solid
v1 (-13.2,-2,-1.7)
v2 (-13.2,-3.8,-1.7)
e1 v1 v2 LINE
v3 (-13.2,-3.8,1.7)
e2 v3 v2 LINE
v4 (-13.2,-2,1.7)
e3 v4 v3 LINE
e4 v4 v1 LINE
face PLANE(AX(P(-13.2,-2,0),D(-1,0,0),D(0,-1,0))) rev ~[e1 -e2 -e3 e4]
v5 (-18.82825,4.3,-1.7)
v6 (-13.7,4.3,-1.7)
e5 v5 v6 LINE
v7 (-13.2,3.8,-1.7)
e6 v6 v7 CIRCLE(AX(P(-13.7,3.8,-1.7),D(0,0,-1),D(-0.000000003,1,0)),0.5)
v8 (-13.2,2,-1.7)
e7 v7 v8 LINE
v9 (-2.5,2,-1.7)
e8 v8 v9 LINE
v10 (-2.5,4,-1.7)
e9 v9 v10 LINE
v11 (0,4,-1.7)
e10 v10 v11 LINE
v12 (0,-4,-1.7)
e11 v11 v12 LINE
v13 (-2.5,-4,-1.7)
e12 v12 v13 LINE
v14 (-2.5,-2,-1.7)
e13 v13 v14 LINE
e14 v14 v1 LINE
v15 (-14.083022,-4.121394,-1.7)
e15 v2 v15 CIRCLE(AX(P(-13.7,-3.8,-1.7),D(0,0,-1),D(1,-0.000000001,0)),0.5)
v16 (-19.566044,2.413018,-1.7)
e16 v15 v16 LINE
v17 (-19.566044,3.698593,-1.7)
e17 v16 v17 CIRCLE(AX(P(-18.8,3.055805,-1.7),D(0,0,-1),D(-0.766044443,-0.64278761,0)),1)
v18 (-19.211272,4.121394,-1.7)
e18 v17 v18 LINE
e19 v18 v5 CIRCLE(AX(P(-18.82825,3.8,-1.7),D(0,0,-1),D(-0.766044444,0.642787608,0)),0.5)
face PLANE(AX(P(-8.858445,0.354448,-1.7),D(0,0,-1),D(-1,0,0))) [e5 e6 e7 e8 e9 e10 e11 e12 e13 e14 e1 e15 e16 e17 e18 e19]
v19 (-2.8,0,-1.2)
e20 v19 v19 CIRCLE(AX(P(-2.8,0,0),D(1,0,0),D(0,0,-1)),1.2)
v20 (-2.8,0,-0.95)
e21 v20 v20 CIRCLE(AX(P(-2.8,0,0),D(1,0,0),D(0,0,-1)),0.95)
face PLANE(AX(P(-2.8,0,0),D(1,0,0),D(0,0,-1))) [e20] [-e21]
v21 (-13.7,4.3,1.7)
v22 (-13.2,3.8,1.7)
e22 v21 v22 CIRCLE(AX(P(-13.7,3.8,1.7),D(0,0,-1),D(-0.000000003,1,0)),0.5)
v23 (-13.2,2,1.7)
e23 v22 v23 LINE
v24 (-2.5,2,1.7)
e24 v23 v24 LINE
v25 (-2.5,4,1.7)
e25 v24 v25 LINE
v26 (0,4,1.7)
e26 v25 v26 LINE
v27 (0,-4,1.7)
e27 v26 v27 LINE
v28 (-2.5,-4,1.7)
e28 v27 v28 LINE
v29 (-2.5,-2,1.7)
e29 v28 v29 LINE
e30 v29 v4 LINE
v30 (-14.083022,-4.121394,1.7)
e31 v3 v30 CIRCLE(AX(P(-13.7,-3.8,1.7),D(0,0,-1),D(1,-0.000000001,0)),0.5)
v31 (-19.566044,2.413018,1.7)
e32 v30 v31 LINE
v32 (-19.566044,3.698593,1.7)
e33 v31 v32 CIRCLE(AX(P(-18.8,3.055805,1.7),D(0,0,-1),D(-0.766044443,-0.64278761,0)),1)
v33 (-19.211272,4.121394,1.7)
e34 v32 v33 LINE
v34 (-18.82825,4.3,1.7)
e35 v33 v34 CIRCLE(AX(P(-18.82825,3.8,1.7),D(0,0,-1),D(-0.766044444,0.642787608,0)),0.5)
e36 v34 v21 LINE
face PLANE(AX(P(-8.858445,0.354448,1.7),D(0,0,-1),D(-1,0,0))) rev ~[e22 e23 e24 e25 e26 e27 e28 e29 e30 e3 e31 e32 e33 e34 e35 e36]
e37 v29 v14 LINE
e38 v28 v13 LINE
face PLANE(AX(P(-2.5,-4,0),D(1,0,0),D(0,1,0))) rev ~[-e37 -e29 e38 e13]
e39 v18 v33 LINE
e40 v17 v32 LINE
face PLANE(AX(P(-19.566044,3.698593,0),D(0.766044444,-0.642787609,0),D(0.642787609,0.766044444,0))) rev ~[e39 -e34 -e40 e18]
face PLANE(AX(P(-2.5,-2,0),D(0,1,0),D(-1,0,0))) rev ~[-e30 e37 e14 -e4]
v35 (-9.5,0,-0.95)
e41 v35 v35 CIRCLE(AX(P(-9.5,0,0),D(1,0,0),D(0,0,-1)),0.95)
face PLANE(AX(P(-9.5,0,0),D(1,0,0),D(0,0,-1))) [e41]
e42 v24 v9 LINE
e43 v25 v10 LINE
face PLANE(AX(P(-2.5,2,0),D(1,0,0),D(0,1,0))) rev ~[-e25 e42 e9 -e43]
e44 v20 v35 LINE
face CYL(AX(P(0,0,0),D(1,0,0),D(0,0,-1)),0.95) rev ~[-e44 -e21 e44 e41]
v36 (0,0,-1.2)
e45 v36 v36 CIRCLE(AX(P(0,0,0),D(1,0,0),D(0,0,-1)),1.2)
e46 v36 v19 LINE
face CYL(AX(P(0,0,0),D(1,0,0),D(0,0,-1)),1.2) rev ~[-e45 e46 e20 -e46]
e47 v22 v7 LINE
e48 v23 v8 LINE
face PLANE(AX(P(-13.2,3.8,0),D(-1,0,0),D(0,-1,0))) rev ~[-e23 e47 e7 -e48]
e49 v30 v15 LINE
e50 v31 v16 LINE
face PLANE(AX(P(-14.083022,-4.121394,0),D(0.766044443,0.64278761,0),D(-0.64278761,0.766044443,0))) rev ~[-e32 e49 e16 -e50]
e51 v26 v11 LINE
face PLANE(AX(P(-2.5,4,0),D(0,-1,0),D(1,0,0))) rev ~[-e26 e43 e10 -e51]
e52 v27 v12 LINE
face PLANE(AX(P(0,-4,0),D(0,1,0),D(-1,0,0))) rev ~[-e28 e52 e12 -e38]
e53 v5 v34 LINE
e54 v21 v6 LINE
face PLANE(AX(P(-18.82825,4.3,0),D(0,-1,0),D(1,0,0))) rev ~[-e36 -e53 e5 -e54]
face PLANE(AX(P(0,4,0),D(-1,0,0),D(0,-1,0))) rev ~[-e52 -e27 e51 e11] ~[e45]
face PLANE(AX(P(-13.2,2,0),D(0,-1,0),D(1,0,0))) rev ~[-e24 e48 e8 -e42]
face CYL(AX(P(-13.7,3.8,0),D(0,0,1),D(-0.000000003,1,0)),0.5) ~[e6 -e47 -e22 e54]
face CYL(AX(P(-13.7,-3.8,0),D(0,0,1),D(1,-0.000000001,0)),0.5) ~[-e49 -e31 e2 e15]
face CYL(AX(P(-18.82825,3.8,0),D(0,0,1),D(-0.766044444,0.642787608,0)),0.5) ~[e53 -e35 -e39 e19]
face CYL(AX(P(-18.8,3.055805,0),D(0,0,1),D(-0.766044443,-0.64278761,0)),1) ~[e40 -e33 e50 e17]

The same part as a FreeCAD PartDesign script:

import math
import FreeCAD as App
import Part
import Sketcher

V = App.Vector
Q = App.Units.Quantity

doc = App.newDocument("Part")
params = doc.addObject("Spreadsheet::Sheet", "Params")
for row, (alias, value) in enumerate([
    ("sketch1_radius", "1 mm"),
    ("sketch1_radius2", "0.5 mm"),
    ("sketch1_height", "2 mm"),
    ("sketch1_height2", "8 mm"),
    ("sketch1_width", "10.7 mm"),
    ("pad1_length", "3.4 mm"),
    ("sketch2_diameter", "1.9 mm"),
    ("pocket1_length", "9.5 mm"),
    ("sketch3_diameter", "2.4 mm"),
    ("pocket2_length", "2.8 mm"),
], start=1):
    params.set(f"A{row}", alias)
    params.set(f"B{row}", "=" + value)
    params.setAlias(f"B{row}", alias)

body = doc.addObject("PartDesign::Body", "Body")

sketch1 = doc.addObject("Sketcher::SketchObject", "Sketch")
body.addObject(sketch1)
sketch1.AttachmentSupport = (doc.XY_Plane, [""])
sketch1.MapMode = "FlatFace"
sketch1.addGeometry([
    Part.LineSegment(V(-13.7, 4.3, 0), V(-18.82825, 4.3, 0)),
    Part.ArcOfCircle(Part.Circle(V(-18.82825, 3.8, 0), V(0, 0, 1), 0.5), math.radians(90), math.radians(140)),
    Part.LineSegment(V(-19.211272, 4.121394, 0), V(-19.566044, 3.698593, 0)),
    Part.ArcOfCircle(Part.Circle(V(-18.8, 3.055805, 0), V(0, 0, 1), 1), math.radians(140), math.radians(220)),
    Part.LineSegment(V(-19.566044, 2.413018, 0), V(-14.083022, -4.121394, 0)),
    Part.ArcOfCircle(Part.Circle(V(-13.7, -3.8, 0), V(0, 0, 1), 0.5), math.radians(-140), math.radians(0)),
    Part.LineSegment(V(-13.2, -3.8, 0), V(-13.2, -2, 0)),
    Part.LineSegment(V(-13.2, -2, 0), V(-2.5, -2, 0)),
    Part.LineSegment(V(-2.5, -2, 0), V(-2.5, -4, 0)),
    Part.LineSegment(V(-2.5, -4, 0), V(0, -4, 0)),
    Part.LineSegment(V(0, -4, 0), V(0, 4, 0)),
    Part.LineSegment(V(0, 4, 0), V(-2.5, 4, 0)),
    Part.LineSegment(V(-2.5, 4, 0), V(-2.5, 2, 0)),
    Part.LineSegment(V(-2.5, 2, 0), V(-13.2, 2, 0)),
    Part.LineSegment(V(-13.2, 2, 0), V(-13.2, 3.8, 0)),
    Part.ArcOfCircle(Part.Circle(V(-13.7, 3.8, 0), V(0, 0, 1), 0.5), math.radians(0), math.radians(90)),
], False)
sketch1.addConstraint([
    Sketcher.Constraint("Tangent", 0, 2, 1, 1),
    Sketcher.Constraint("Tangent", 1, 2, 2, 1),
    Sketcher.Constraint("Tangent", 2, 2, 3, 1),
    Sketcher.Constraint("Tangent", 3, 2, 4, 1),
    Sketcher.Constraint("Tangent", 4, 2, 5, 1),
    Sketcher.Constraint("Tangent", 5, 2, 6, 1),
    Sketcher.Constraint("Coincident", 6, 2, 7, 1),
    Sketcher.Constraint("Coincident", 7, 2, 8, 1),
    Sketcher.Constraint("Coincident", 8, 2, 9, 1),
    Sketcher.Constraint("Coincident", 9, 2, 10, 1),
    Sketcher.Constraint("Coincident", 10, 2, 11, 1),
    Sketcher.Constraint("Coincident", 11, 2, 12, 1),
    Sketcher.Constraint("Coincident", 12, 2, 13, 1),
    Sketcher.Constraint("Coincident", 13, 2, 14, 1),
    Sketcher.Constraint("Tangent", 14, 2, 15, 1),
    Sketcher.Constraint("Tangent", 15, 2, 0, 1),
    Sketcher.Constraint("Horizontal", 0),
    Sketcher.Constraint("Vertical", 6),
    Sketcher.Constraint("Horizontal", 7),
    Sketcher.Constraint("Vertical", 8),
    Sketcher.Constraint("Horizontal", 9),
    Sketcher.Constraint("Vertical", 10),
    Sketcher.Constraint("Horizontal", 11),
    Sketcher.Constraint("Vertical", 12),
    Sketcher.Constraint("Horizontal", 13),
    Sketcher.Constraint("Vertical", 14),
    Sketcher.Constraint("Equal", 1, 5),
    Sketcher.Constraint("Equal", 5, 15),
    Sketcher.Constraint("Symmetric", 9, 2, 10, 2, -1, 1),
    Sketcher.Constraint("Symmetric", 5, 3, 15, 3, -1),
    Sketcher.Constraint("Symmetric", 7, 2, 12, 2, -1),
    Sketcher.Constraint("Vertical", 2, 2, 3, 2),
    Sketcher.Constraint("Radius", 3, Q("1 mm")),
    Sketcher.Constraint("Radius", 1, Q("0.5 mm")),
    Sketcher.Constraint("DistanceY", 8, 2, 8, 1, Q("2 mm")),
    Sketcher.Constraint("DistanceY", 10, 1, 10, 2, Q("8 mm")),
    Sketcher.Constraint("Angle", 2, Q("-130 deg")),
    Sketcher.Constraint("DistanceX", 7, 1, 7, 2, Q("10.7 mm")),
    Sketcher.Constraint("DistanceX", 9, 1, 9, 2, Q("2.5 mm")),
    Sketcher.Constraint("DistanceY", 6, 1, 6, 2, Q("1.8 mm")),
    Sketcher.Constraint("DistanceX", 3, 3, -1, 1, Q("18.8 mm")),
])
sketch1.setExpression("Constraints[32]", "Params.sketch1_radius")
sketch1.setExpression("Constraints[33]", "Params.sketch1_radius2")
sketch1.setExpression("Constraints[34]", "Params.sketch1_height")
sketch1.setExpression("Constraints[35]", "Params.sketch1_height2")
sketch1.setExpression("Constraints[37]", "Params.sketch1_width")
pad1 = doc.addObject("PartDesign::Pad", "Pad")
body.addObject(pad1)
pad1.Profile = sketch1
pad1.setExpression("Length", "Params.pad1_length")
pad1.Midplane = True

sketch2 = doc.addObject("Sketcher::SketchObject", "Sketch001")
body.addObject(sketch2)
sketch2.AttachmentSupport = (doc.YZ_Plane, [""])
sketch2.MapMode = "FlatFace"
sketch2.addGeometry(Part.Circle(V(0, 0, 0), V(0, 0, 1), 0.95), False)
sketch2.addConstraint([
    Sketcher.Constraint("Coincident", 0, 3, -1, 1),
    Sketcher.Constraint("Diameter", 0, Q("1.9 mm")),
])
sketch2.setExpression("Constraints[1]", "Params.sketch2_diameter")
pocket1 = doc.addObject("PartDesign::Pocket", "Pocket")
body.addObject(pocket1)
pocket1.Profile = sketch2
pocket1.setExpression("Length", "Params.pocket1_length")

sketch3 = doc.addObject("Sketcher::SketchObject", "Sketch002")
body.addObject(sketch3)
sketch3.AttachmentSupport = (doc.YZ_Plane, [""])
sketch3.MapMode = "FlatFace"
sketch3.addGeometry(Part.Circle(V(0, 0, 0), V(0, 0, 1), 1.2), False)
sketch3.addConstraint([
    Sketcher.Constraint("Coincident", 0, 3, -1, 1),
    Sketcher.Constraint("Diameter", 0, Q("2.4 mm")),
])
sketch3.setExpression("Constraints[1]", "Params.sketch3_diameter")
pocket2 = doc.addObject("PartDesign::Pocket", "Pocket001")
body.addObject(pocket2)
pocket2.Profile = sketch3
pocket2.setExpression("Length", "Params.pocket2_length")

doc.recompute()
